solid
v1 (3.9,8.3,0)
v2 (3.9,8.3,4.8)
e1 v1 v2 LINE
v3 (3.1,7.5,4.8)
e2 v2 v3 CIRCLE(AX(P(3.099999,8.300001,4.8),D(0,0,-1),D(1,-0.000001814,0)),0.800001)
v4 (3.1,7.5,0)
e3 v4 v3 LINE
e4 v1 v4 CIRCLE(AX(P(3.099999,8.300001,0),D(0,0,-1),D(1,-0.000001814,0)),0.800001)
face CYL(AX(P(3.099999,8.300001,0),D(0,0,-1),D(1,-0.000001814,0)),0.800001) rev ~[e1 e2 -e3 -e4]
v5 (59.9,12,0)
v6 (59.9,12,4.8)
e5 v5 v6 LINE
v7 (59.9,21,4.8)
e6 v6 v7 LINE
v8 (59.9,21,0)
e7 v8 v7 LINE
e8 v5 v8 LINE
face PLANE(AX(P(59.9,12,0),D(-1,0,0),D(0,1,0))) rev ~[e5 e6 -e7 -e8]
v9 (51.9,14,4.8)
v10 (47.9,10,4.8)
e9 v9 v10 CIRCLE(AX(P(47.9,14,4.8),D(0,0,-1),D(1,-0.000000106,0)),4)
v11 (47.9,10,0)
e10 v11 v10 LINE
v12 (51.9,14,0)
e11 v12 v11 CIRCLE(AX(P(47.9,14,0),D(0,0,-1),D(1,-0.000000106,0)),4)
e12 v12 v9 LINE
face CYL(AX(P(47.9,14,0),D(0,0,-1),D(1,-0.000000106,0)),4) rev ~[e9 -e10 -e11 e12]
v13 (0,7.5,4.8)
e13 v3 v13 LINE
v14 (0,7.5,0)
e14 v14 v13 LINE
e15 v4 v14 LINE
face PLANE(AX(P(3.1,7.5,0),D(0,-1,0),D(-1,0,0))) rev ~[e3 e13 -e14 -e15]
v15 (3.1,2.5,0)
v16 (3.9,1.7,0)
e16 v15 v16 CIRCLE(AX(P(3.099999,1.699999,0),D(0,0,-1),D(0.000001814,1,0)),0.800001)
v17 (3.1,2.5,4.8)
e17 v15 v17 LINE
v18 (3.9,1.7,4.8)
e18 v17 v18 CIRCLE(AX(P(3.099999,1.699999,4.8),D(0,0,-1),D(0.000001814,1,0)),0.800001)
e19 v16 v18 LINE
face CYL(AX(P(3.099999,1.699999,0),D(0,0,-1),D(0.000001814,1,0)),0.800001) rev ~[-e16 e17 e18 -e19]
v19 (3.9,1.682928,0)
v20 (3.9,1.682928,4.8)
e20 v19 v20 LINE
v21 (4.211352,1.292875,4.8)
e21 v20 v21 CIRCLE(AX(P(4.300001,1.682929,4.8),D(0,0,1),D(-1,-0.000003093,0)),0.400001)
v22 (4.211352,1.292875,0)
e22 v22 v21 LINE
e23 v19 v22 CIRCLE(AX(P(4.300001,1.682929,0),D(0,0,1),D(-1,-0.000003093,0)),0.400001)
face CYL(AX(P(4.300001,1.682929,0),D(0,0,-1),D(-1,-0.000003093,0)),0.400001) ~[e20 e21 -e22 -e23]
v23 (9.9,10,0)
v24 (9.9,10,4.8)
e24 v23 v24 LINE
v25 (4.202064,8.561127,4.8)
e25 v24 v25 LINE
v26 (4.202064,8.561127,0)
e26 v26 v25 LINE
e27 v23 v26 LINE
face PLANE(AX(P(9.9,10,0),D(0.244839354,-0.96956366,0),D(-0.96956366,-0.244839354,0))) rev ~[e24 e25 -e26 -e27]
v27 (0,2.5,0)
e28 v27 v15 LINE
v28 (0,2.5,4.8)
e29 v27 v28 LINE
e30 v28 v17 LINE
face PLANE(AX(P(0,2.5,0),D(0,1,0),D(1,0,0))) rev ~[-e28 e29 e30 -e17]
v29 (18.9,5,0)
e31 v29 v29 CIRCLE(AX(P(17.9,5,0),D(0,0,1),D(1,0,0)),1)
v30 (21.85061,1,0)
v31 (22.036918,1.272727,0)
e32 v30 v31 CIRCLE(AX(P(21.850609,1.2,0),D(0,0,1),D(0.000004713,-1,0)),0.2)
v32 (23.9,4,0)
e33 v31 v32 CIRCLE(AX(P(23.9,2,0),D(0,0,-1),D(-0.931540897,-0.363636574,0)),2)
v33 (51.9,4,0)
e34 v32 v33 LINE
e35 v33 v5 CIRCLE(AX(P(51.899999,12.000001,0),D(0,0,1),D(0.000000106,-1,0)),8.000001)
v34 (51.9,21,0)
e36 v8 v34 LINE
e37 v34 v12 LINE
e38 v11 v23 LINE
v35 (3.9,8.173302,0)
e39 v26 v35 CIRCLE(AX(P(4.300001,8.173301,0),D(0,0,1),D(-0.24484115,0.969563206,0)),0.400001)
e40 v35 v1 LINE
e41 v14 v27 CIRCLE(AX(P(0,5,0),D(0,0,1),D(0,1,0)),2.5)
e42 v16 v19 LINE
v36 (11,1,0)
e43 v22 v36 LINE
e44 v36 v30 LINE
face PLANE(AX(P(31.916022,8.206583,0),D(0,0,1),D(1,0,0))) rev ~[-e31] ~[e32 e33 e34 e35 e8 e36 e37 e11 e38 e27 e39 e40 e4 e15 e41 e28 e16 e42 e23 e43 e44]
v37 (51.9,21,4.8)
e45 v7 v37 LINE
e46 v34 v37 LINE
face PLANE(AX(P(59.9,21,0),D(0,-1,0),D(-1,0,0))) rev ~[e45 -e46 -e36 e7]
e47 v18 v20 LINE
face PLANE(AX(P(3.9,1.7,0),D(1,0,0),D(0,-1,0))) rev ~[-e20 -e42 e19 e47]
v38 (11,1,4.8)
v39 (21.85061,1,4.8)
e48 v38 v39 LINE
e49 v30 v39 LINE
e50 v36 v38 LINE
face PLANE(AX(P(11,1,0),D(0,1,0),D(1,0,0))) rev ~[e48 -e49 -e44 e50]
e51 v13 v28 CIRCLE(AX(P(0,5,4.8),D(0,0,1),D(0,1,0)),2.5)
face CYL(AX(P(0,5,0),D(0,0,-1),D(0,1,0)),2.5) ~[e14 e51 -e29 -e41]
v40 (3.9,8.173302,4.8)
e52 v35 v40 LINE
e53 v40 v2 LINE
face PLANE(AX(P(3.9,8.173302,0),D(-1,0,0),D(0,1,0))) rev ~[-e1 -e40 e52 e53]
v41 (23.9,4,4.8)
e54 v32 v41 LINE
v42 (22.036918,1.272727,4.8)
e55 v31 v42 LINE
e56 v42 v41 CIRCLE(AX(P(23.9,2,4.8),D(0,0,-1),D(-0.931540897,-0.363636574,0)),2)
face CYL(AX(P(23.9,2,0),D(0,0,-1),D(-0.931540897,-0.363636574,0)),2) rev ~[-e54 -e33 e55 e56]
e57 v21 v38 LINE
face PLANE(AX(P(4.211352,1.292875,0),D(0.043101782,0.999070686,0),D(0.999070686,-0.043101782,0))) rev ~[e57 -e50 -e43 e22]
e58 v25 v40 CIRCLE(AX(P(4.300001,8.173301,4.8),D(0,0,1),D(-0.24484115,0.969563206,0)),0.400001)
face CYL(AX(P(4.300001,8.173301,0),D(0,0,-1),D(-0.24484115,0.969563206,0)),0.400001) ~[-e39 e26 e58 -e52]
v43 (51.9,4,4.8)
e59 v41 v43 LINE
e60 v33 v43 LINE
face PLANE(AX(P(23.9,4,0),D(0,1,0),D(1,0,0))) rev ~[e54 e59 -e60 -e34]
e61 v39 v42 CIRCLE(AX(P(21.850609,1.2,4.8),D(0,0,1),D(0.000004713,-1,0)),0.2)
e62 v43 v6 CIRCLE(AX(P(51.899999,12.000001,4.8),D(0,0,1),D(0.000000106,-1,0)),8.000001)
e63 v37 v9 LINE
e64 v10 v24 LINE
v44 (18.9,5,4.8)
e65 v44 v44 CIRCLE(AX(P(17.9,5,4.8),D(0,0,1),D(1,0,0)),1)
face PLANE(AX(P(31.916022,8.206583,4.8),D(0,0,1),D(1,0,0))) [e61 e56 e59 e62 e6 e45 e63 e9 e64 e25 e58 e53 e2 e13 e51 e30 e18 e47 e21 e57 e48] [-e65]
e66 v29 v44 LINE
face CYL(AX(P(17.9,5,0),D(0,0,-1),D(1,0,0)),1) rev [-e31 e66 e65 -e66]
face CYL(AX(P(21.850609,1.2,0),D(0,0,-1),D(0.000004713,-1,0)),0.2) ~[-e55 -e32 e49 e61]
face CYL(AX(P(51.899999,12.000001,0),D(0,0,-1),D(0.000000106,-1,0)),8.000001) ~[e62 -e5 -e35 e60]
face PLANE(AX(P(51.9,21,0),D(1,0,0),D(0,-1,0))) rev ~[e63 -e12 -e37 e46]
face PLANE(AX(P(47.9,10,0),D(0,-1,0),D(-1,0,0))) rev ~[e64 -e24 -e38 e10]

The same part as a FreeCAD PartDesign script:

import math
import FreeCAD as App
import Part
import Sketcher
Q = App.Units.Quantity

doc = App.newDocument("Part")
params = doc.addObject("Spreadsheet::Sheet", "Params")
for row, (alias, value) in enumerate([
    ("sketch1_diameter", "2 mm"),
    ("sketch1_radius", "8.000001 mm"),
    ("sketch1_radius2", "4 mm"),
    ("sketch1_radius3", "2 mm"),
    ("sketch1_radius4", "0.400001 mm"),
    ("pad1_length", "4.8 mm"),
], start=1):
    params.set(f"A{row}", alias)
    params.set(f"B{row}", "=" + value)
    params.setAlias(f"B{row}", alias)

body = doc.addObject("PartDesign::Body", "Body")

# Sketch on XY plane
sketch1 = doc.addObject("Sketcher::SketchObject", "Sketch")
body.addObject(sketch1)
sketch1.AttachmentSupport = (doc.XY_Plane, [""])
sketch1.MapMode = "FlatFace"
sketch1.addGeometry([
    Part.ArcOfCircle(Part.Circle(App.Vector(51.9, 12, 0), App.Vector(0, 0, 1), 8), math.radians(-90), math.radians(0)),  # 0
    Part.LineSegment(App.Vector(59.9, 12, 0), App.Vector(59.9, 21, 0)),  # 1
    Part.LineSegment(App.Vector(59.9, 21, 0), App.Vector(51.9, 21, 0)),  # 2
    Part.LineSegment(App.Vector(51.9, 21, 0), App.Vector(51.9, 14, 0)),  # 3
    Part.ArcOfCircle(Part.Circle(App.Vector(47.9, 14, 0), App.Vector(0, 0, 1), 4), math.radians(-90), math.radians(0)),  # 4
    Part.LineSegment(App.Vector(47.9, 10, 0), App.Vector(9.9, 10, 0)),  # 5
    Part.LineSegment(App.Vector(9.9, 10, 0), App.Vector(4.202, 8.561, 0)),  # 6
    Part.ArcOfCircle(Part.Circle(App.Vector(4.3, 8.173, 0), App.Vector(0, 0, 1), 0.4), math.radians(104), math.radians(180)),  # 7
    Part.LineSegment(App.Vector(3.9, 8.173, 0), App.Vector(3.9, 8.3, 0)),  # 8
    Part.ArcOfCircle(Part.Circle(App.Vector(3.1, 8.3, 0), App.Vector(0, 0, 1), 0.8), math.radians(-90), math.radians(0)),  # 9
    Part.LineSegment(App.Vector(3.1, 7.5, 0), App.Vector(0, 7.5, 0)),  # 10
    Part.ArcOfCircle(Part.Circle(App.Vector(0, 5, 0), App.Vector(0, 0, 1), 2.5), math.radians(90), math.radians(270)),  # 11
    Part.LineSegment(App.Vector(0, 2.5, 0), App.Vector(3.1, 2.5, 0)),  # 12
    Part.ArcOfCircle(Part.Circle(App.Vector(3.1, 1.7, 0), App.Vector(0, 0, 1), 0.8), math.radians(0), math.radians(90)),  # 13
    Part.LineSegment(App.Vector(3.9, 1.7, 0), App.Vector(3.9, 1.683, 0)),  # 14
    Part.ArcOfCircle(Part.Circle(App.Vector(4.3, 1.683, 0), App.Vector(0, 0, 1), 0.4), math.radians(-180), math.radians(-103)),  # 15
    Part.LineSegment(App.Vector(4.211, 1.293, 0), App.Vector(11, 1, 0)),  # 16
    Part.LineSegment(App.Vector(11, 1, 0), App.Vector(21.851, 1, 0)),  # 17
    Part.ArcOfCircle(Part.Circle(App.Vector(21.851, 1.2, 0), App.Vector(0, 0, 1), 0.2), math.radians(-90), math.radians(21)),  # 18
    Part.ArcOfCircle(Part.Circle(App.Vector(23.9, 2, 0), App.Vector(0, 0, 1), 2), math.radians(90), math.radians(201)),  # 19
    Part.LineSegment(App.Vector(23.9, 4, 0), App.Vector(51.9, 4, 0)),  # 20
    Part.Circle(App.Vector(17.9, 5, 0), App.Vector(0, 0, 1), 1),  # 21
], False)
sketch1.addConstraint([
    Sketcher.Constraint("Tangent", 0, 2, 1, 1),
    Sketcher.Constraint("Coincident", 1, 2, 2, 1),
    Sketcher.Constraint("Coincident", 2, 2, 3, 1),
    Sketcher.Constraint("Tangent", 3, 2, 4, 2),
    Sketcher.Constraint("Tangent", 4, 1, 5, 1),
    Sketcher.Constraint("Coincident", 5, 2, 6, 1),
    Sketcher.Constraint("Tangent", 6, 2, 7, 1),
    Sketcher.Constraint("Coincident", 7, 2, 8, 1),
    Sketcher.Constraint("Tangent", 8, 2, 9, 2),
    Sketcher.Constraint("Tangent", 9, 1, 10, 1),
    Sketcher.Constraint("Tangent", 10, 2, 11, 1),
    Sketcher.Constraint("Tangent", 11, 2, 12, 1),
    Sketcher.Constraint("Tangent", 12, 2, 13, 2),
    Sketcher.Constraint("Tangent", 13, 1, 14, 1),
    Sketcher.Constraint("Coincident", 14, 2, 15, 1),
    Sketcher.Constraint("Coincident", 15, 2, 16, 1),
    Sketcher.Constraint("Coincident", 16, 2, 17, 1),
    Sketcher.Constraint("Coincident", 17, 2, 18, 1),
    Sketcher.Constraint("Coincident", 18, 2, 19, 2),
    Sketcher.Constraint("Tangent", 19, 1, 20, 1),
    Sketcher.Constraint("Tangent", 20, 2, 0, 1),
    Sketcher.Constraint("Vertical", 1),
    Sketcher.Constraint("Horizontal", 2),
    Sketcher.Constraint("Vertical", 3),
    Sketcher.Constraint("Horizontal", 5),
    Sketcher.Constraint("Vertical", 8),
    Sketcher.Constraint("Horizontal", 10),
    Sketcher.Constraint("Horizontal", 12),
    Sketcher.Constraint("Vertical", 14),
    Sketcher.Constraint("Horizontal", 17),
    Sketcher.Constraint("Horizontal", 20),
    Sketcher.Constraint("Equal", 9, 13),
    Sketcher.Constraint("Equal", 7, 15),
    Sketcher.Constraint("PointOnObject", 11, 3, -2),
    Sketcher.Constraint("Horizontal", 11, 3, 21, 3),
    Sketcher.Constraint("Horizontal", 15, 3, 14, 2),
    Sketcher.Constraint("Vertical", 9, 3, 13, 3),
    Sketcher.Constraint("Vertical", 0, 3, 2, 2),
    Sketcher.Constraint("Vertical", 18, 3, 17, 2),
    Sketcher.Constraint("Diameter", 21, Q("2 mm")),
    Sketcher.Constraint("Radius", 0, Q("8.000001 mm")),
    Sketcher.Constraint("Radius", 4, Q("4 mm")),
    Sketcher.Constraint("Radius", 19, Q("2 mm")),
    Sketcher.Constraint("Radius", 7, Q("0.400001 mm")),
    Sketcher.Constraint("Radius", 9, Q("0.800001 mm")),
    Sketcher.Constraint("Radius", 11, Q("2.5 mm")),
    Sketcher.Constraint("Radius", 18, Q("0.2 mm")),
    Sketcher.Constraint("DistanceX", 5, 2, 5, 1, Q("38 mm")),
    Sketcher.Constraint("DistanceX", 20, 1, 20, 2, Q("28 mm")),
    Sketcher.Constraint("DistanceY", 1, 1, 1, 2, Q("9 mm")),
    Sketcher.Constraint("DistanceY", 3, 2, 3, 1, Q("7 mm")),
    Sketcher.Constraint("DistanceX", 10, 2, 10, 1, Q("3.1 mm")),
    Sketcher.Constraint("DistanceY", -1, 1, 0, 3, Q("12.000001 mm")),
    Sketcher.Constraint("DistanceY", -1, 1, 11, 3, Q("5 mm")),
    Sketcher.Constraint("DistanceX", -1, 1, 16, 2, Q("11 mm")),
    Sketcher.Constraint("DistanceY", -1, 1, 16, 2, Q("1 mm")),
    Sketcher.Constraint("DistanceX", 21, 3, 19, 3, Q("6 mm")),
    Sketcher.Constraint("DistanceX", 7, 2, 5, 2, Q("6 mm")),
    Sketcher.Constraint("DistanceY", 8, 1, 8, 2, Q("0.126698 mm")),
    Sketcher.Constraint("DistanceY", 14, 2, 14, 1, Q("0.017072 mm")),
    Sketcher.Constraint("DistanceY", -1, 1, 7, 3, Q("8.173301 mm")),
    Sketcher.Constraint("DistanceX", -1, 1, 15, 2, Q("4.211352 mm")),
    Sketcher.Constraint("DistanceX", 18, 3, 18, 2, Q("0.186309 mm")),
])
sketch1.setExpression("Constraints[39]", "Params.sketch1_diameter")
sketch1.setExpression("Constraints[40]", "Params.sketch1_radius")
sketch1.setExpression("Constraints[41]", "Params.sketch1_radius2")
sketch1.setExpression("Constraints[42]", "Params.sketch1_radius3")
sketch1.setExpression("Constraints[43]", "Params.sketch1_radius4")
pad1 = doc.addObject("PartDesign::Pad", "Pad")
body.addObject(pad1)
pad1.Profile = sketch1
pad1.setExpression("Length", "Params.pad1_length")

doc.recompute()
